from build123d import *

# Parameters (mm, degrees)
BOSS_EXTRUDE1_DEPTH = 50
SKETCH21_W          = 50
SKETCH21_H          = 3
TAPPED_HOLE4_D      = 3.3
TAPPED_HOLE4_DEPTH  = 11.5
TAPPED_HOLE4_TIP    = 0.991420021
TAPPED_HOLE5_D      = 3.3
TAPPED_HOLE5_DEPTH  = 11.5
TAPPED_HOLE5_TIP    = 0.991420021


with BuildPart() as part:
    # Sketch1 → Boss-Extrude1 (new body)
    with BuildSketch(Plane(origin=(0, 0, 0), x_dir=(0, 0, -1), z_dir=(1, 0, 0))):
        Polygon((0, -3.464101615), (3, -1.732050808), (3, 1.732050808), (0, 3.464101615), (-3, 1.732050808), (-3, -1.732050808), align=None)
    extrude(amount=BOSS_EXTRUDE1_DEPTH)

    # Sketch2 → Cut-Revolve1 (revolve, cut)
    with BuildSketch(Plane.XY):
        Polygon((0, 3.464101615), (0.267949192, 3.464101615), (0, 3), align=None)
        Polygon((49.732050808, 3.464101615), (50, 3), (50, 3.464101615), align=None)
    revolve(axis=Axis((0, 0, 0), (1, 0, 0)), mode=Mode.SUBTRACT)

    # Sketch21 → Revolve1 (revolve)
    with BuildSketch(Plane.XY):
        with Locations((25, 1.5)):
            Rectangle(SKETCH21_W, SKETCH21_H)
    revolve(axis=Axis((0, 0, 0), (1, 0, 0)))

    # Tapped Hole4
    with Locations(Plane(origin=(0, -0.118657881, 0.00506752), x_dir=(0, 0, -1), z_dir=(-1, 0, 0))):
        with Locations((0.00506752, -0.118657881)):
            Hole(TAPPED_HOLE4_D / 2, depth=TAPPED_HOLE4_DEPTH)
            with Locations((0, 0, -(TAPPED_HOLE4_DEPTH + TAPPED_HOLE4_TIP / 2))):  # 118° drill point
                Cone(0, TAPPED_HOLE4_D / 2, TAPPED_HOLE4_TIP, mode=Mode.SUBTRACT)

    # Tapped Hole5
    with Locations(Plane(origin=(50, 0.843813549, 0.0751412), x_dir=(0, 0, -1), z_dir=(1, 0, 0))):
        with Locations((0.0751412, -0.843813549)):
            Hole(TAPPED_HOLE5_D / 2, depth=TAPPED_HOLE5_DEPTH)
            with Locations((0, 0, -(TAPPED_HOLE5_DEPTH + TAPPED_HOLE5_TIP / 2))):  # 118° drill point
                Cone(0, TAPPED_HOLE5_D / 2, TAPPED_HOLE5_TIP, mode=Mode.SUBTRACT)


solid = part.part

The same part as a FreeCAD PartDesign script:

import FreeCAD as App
import Part
import Sketcher
from FreeCAD import Vector
Q = App.Units.Quantity

doc = App.newDocument("Part")
body = doc.addObject("PartDesign::Body", "Body")

sketch1 = doc.addObject("Sketcher::SketchObject", "Sketch")
body.addObject(sketch1)
sketch1.AttachmentSupport = (doc.YZ_Plane, [""])
sketch1.MapMode = "FlatFace"
sketch1.addGeometry(Part.LineSegment(Vector(-3.5, 0, 0), Vector(-1.7, -3, 0)), False)
sketch1.addGeometry(Part.LineSegment(Vector(-1.7, -3, 0), Vector(1.7, -3, 0)), False)
sketch1.addGeometry(Part.LineSegment(Vector(1.7, -3, 0), Vector(3.5, 0, 0)), False)
sketch1.addGeometry(Part.LineSegment(Vector(3.5, 0, 0), Vector(1.7, 3, 0)), False)
sketch1.addGeometry(Part.LineSegment(Vector(1.7, 3, 0), Vector(-1.7, 3, 0)), False)
sketch1.addGeometry(Part.LineSegment(Vector(-1.7, 3, 0), Vector(-3.5, 0, 0)), False)
sketch1.addConstraint(Sketcher.Constraint("Coincident", 0, 2, 1, 1))
sketch1.addConstraint(Sketcher.Constraint("Coincident", 1, 2, 2, 1))
sketch1.addConstraint(Sketcher.Constraint("Coincident", 2, 2, 3, 1))
sketch1.addConstraint(Sketcher.Constraint("Coincident", 3, 2, 4, 1))
sketch1.addConstraint(Sketcher.Constraint("Coincident", 4, 2, 5, 1))
sketch1.addConstraint(Sketcher.Constraint("Coincident", 5, 2, 0, 1))
sketch1.addConstraint(Sketcher.Constraint("Horizontal", 1))
sketch1.addConstraint(Sketcher.Constraint("Horizontal", 4))
sketch1.addConstraint(Sketcher.Constraint("Symmetric", 0, 2, 3, 2, -1, 1))
sketch1.addConstraint(Sketcher.Constraint("Symmetric", 2, 2, 5, 2, -1, 1))
sketch1.addConstraint(Sketcher.Constraint("PointOnObject", 2, 2, -1))
sketch1.addConstraint(Sketcher.Constraint("Parallel", 2, 5))
sketch1.addConstraint(Sketcher.Constraint("Vertical", 1, 2, 3, 2))
sketch1.addConstraint(Sketcher.Constraint("Angle", 0, Q("-60 deg")))
sketch1.addConstraint(Sketcher.Constraint("DistanceY", 0, 2, -1, 1, Q("3 mm")))
sketch1.addConstraint(Sketcher.Constraint("DistanceX", 1, 1, 1, 2, Q("3.464102 mm")))
pad1 = doc.addObject("PartDesign::Pad", "Pad")
body.addObject(pad1)
pad1.Profile = sketch1
pad1.Length = 50

sketch2 = doc.addObject("Sketcher::SketchObject", "Sketch001")
body.addObject(sketch2)
sketch2.AttachmentSupport = (doc.XY_Plane, [""])
sketch2.MapMode = "FlatFace"
sketch2.addGeometry(Part.LineSegment(Vector(0.27, 3.46, 0), Vector(0, 3.46, 0)), False)
sketch2.addGeometry(Part.LineSegment(Vector(0, 3.46, 0), Vector(0, 3, 0)), False)
sketch2.addGeometry(Part.LineSegment(Vector(0, 3, 0), Vector(0.27, 3.46, 0)), False)
sketch2.addGeometry(Part.LineSegment(Vector(49.73, 3.46, 0), Vector(50, 3, 0)), False)
sketch2.addGeometry(Part.LineSegment(Vector(50, 3, 0), Vector(50, 3.46, 0)), False)
sketch2.addGeometry(Part.LineSegment(Vector(50, 3.46, 0), Vector(49.73, 3.46, 0)), False)
sketch2.addConstraint(Sketcher.Constraint("Coincident", 0, 2, 1, 1))
sketch2.addConstraint(Sketcher.Constraint("Coincident", 1, 2, 2, 1))
sketch2.addConstraint(Sketcher.Constraint("Coincident", 2, 2, 0, 1))
sketch2.addConstraint(Sketcher.Constraint("Coincident", 3, 2, 4, 1))
sketch2.addConstraint(Sketcher.Constraint("Coincident", 4, 2, 5, 1))
sketch2.addConstraint(Sketcher.Constraint("Coincident", 5, 2, 3, 1))
sketch2.addConstraint(Sketcher.Constraint("Horizontal", 0))
sketch2.addConstraint(Sketcher.Constraint("Vertical", 1))
sketch2.addConstraint(Sketcher.Constraint("Vertical", 4))
sketch2.addConstraint(Sketcher.Constraint("Horizontal", 5))
sketch2.addConstraint(Sketcher.Constraint("PointOnObject", 0, 2, -2))
sketch2.addConstraint(Sketcher.Constraint("Horizontal", 1, 2, 3, 2))
sketch2.addConstraint(Sketcher.Constraint("Horizontal", 2, 2, 4, 2))
sketch2.addConstraint(Sketcher.Constraint("Equal", 0, 5))
sketch2.addConstraint(Sketcher.Constraint("Angle", 2, Q("60 deg")))
sketch2.addConstraint(Sketcher.Constraint("DistanceY", -1, 1, 1, 2, Q("3 mm")))
sketch2.addConstraint(Sketcher.Constraint("DistanceX", -1, 1, 3, 2, Q("50 mm")))
sketch2.addConstraint(Sketcher.Constraint("DistanceY", 1, 2, 1, 1, Q("0.464102 mm")))
groove = doc.addObject("PartDesign::Groove", "Groove")
body.addObject(groove)
groove.Profile = sketch2
groove.ReferenceAxis = (sketch2, ["H_Axis"])
groove.Angle = 360

sketch3 = doc.addObject("Sketcher::SketchObject", "Sketch002")
body.addObject(sketch3)
sketch3.AttachmentSupport = (doc.XY_Plane, [""])
sketch3.MapMode = "FlatFace"
sketch3.addGeometry(Part.LineSegment(Vector(0, 3, 0), Vector(0, 0, 0)), False)
sketch3.addGeometry(Part.LineSegment(Vector(0, 0, 0), Vector(50, 0, 0)), False)
sketch3.addGeometry(Part.LineSegment(Vector(50, 0, 0), Vector(50, 3, 0)), False)
sketch3.addGeometry(Part.LineSegment(Vector(50, 3, 0), Vector(0, 3, 0)), False)
sketch3.addConstraint(Sketcher.Constraint("Coincident", 0, 2, 1, 1))
sketch3.addConstraint(Sketcher.Constraint("Coincident", 1, 2, 2, 1))
sketch3.addConstraint(Sketcher.Constraint("Coincident", 2, 2, 3, 1))
sketch3.addConstraint(Sketcher.Constraint("Coincident", 3, 2, 0, 1))
sketch3.addConstraint(Sketcher.Constraint("Vertical", 0))
sketch3.addConstraint(Sketcher.Constraint("Horizontal", 1))
sketch3.addConstraint(Sketcher.Constraint("Vertical", 2))
sketch3.addConstraint(Sketcher.Constraint("Horizontal", 3))
sketch3.addConstraint(Sketcher.Constraint("Coincident", 0, 2, -1, 1))
sketch3.addConstraint(Sketcher.Constraint("DistanceX", 1, 1, 1, 2, Q("50 mm")))
sketch3.addConstraint(Sketcher.Constraint("DistanceY", 0, 2, 0, 1, Q("3 mm")))
revolution = doc.addObject("PartDesign::Revolution", "Revolution")
body.addObject(revolution)
revolution.Profile = sketch3
revolution.ReferenceAxis = (sketch3, ["H_Axis"])
revolution.Angle = 360

sketch4 = doc.addObject("Sketcher::SketchObject", "Sketch003")
body.addObject(sketch4)
sketch4.AttachmentSupport = (doc.YZ_Plane, [""])
sketch4.MapMode = "FlatFace"
sketch4.addGeometry(Part.Circle(Vector(0, 0, 0), Vector(0, 0, 1), 1.6), False)
sketch4.addConstraint(Sketcher.Constraint("Coincident", 0, 3, -1, 1))
sketch4.addConstraint(Sketcher.Constraint("Diameter", 0, Q("3.3 mm")))
doc.recompute()
hole = doc.addObject("PartDesign::Hole", "Hole")
body.addObject(hole)
hole.Profile = sketch4
hole.ThreadType = "None"
hole.Diameter = 3.3
hole.DepthType = "Dimension"
hole.Depth = 11.5
hole.DrillPoint = "Angled"
hole.DrillPointAngle = 118
hole.Reversed = True

sketch5 = doc.addObject("Sketcher::SketchObject", "Sketch004")
body.addObject(sketch5)
sketch5.AttachmentSupport = (doc.YZ_Plane, [""])
sketch5.MapMode = "FlatFace"
sketch5.AttachmentOffset = App.Placement(Vector(0, 0, 50), App.Rotation())
sketch5.addGeometry(Part.Circle(Vector(0, 0, 0), Vector(0, 0, 1), 1.6), False)
sketch5.addConstraint(Sketcher.Constraint("Coincident", 0, 3, -1, 1))
sketch5.addConstraint(Sketcher.Constraint("Diameter", 0, Q("3.3 mm")))
doc.recompute()
hole2 = doc.addObject("PartDesign::Hole", "Hole001")
body.addObject(hole2)
hole2.Profile = sketch5
hole2.ThreadType = "None"
hole2.Diameter = 3.3
hole2.DepthType = "Dimension"
hole2.Depth = 11.5
hole2.DrillPoint = "Angled"
hole2.DrillPointAngle = 118

doc.recompute()
